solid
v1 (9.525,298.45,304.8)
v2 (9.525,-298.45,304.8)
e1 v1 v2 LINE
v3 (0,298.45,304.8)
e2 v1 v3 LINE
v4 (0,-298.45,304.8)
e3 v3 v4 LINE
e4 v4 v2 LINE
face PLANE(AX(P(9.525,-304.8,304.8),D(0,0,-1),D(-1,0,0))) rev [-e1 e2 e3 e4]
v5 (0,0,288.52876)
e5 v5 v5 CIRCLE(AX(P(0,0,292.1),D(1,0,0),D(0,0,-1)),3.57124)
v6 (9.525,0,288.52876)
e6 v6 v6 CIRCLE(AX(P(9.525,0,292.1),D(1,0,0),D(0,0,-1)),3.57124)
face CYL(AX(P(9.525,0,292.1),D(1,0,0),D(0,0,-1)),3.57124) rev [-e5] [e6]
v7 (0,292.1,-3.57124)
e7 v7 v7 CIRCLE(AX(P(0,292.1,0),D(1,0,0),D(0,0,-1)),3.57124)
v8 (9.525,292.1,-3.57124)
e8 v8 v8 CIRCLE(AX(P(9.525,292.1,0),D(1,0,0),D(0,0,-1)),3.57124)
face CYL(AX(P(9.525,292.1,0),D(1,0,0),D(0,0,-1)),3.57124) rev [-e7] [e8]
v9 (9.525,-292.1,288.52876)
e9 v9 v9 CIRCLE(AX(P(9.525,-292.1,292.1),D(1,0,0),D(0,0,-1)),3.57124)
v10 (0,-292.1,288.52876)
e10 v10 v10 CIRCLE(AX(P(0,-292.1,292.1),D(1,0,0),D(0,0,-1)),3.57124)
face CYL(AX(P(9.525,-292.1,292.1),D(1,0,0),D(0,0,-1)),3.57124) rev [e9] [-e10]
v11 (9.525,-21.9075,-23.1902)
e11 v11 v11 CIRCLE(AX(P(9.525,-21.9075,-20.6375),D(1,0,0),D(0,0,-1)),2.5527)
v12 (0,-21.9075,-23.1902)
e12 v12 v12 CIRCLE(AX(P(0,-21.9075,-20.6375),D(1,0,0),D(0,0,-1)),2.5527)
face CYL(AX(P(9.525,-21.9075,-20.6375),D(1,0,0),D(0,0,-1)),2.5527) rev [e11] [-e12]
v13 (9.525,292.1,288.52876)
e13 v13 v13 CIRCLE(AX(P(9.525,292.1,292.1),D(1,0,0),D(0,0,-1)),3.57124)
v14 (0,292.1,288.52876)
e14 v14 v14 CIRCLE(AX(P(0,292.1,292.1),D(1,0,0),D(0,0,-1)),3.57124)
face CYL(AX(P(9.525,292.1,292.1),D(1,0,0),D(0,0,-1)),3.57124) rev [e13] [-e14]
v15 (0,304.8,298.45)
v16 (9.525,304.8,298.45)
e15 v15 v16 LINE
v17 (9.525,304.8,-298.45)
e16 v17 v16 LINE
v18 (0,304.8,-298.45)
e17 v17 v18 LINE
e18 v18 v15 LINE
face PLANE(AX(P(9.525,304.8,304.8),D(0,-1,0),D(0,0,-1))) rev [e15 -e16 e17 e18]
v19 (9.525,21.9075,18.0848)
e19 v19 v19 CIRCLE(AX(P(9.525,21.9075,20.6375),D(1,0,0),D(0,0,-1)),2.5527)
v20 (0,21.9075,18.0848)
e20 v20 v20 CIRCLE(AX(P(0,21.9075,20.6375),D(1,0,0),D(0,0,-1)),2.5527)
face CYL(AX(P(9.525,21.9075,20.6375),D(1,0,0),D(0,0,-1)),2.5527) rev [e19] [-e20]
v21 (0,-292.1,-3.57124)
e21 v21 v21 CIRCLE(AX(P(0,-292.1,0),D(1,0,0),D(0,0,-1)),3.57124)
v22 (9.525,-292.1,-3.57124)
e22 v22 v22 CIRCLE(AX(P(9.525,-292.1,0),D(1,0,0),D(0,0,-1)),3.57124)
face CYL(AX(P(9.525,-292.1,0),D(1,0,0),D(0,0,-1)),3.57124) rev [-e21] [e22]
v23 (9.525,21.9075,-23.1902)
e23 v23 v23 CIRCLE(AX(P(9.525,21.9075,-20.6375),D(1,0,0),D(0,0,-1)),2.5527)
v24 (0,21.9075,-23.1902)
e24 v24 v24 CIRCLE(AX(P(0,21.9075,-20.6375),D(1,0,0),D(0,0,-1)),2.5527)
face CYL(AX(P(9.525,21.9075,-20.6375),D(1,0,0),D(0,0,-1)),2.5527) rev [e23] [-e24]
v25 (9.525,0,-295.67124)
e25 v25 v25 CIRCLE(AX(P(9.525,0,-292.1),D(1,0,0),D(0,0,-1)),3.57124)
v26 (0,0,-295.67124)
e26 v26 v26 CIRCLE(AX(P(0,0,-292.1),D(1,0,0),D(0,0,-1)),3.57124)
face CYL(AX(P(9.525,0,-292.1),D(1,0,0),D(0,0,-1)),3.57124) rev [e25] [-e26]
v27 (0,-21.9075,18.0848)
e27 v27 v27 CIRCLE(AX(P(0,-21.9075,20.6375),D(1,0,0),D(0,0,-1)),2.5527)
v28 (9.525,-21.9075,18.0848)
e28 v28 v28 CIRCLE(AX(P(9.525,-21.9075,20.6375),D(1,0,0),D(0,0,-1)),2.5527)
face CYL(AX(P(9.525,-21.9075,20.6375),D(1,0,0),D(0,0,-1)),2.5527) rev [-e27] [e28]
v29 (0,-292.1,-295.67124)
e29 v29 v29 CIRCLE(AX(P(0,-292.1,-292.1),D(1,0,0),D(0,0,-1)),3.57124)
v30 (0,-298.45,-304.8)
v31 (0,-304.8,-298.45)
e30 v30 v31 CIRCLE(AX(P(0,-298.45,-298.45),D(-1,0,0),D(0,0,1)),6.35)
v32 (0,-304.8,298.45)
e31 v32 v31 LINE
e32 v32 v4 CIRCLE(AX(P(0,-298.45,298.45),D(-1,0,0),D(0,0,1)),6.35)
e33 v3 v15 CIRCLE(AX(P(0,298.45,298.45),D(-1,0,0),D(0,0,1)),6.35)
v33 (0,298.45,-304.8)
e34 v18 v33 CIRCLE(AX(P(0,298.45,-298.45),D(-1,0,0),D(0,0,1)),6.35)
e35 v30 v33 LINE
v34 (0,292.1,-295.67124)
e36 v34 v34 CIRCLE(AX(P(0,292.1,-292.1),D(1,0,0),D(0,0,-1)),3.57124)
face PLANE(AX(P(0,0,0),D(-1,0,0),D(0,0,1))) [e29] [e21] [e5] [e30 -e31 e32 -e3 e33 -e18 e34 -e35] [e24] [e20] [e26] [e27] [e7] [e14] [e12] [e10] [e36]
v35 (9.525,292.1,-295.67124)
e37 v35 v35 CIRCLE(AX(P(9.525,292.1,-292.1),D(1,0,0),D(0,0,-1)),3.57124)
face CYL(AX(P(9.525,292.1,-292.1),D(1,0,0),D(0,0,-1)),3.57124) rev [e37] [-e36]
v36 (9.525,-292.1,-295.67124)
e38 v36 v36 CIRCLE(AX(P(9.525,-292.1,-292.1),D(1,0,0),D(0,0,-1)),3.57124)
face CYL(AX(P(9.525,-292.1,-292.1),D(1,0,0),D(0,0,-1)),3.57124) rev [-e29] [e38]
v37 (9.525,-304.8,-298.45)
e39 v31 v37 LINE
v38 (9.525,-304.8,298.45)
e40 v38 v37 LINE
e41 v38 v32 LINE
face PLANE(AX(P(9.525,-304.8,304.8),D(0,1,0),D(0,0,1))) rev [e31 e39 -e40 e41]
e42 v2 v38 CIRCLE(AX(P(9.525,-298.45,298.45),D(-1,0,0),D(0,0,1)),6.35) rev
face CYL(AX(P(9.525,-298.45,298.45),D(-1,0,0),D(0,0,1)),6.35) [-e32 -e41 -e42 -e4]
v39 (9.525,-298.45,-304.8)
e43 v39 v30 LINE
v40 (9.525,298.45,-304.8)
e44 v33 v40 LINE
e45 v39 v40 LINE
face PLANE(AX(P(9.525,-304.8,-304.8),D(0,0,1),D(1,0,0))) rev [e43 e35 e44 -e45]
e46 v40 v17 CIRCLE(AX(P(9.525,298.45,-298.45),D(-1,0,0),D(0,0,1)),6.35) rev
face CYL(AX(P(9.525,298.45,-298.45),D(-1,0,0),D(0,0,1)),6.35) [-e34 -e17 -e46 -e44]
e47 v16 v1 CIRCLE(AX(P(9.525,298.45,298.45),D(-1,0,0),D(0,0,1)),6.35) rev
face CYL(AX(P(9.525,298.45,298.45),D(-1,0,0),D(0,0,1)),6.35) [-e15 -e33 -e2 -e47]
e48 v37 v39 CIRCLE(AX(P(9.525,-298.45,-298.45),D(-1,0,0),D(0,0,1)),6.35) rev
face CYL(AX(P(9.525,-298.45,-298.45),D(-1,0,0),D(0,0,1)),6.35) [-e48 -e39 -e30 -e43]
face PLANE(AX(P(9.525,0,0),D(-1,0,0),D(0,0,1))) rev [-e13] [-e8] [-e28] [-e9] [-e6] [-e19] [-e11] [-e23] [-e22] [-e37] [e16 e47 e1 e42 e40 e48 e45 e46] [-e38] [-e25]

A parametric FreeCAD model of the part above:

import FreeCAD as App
import Part
import Sketcher
from FreeCAD import Vector
Q = App.Units.Quantity


def edges_at(feature, points):
    """Names of the edges that pass closest to the given points."""
    edges = feature.Shape.Edges
    near = lambda p: min(range(len(edges)), key=lambda i: edges[i].distToShape(Part.Vertex(*p))[0])
    return sorted({f"Edge{near(p) + 1}" for p in points})

doc = App.newDocument("Part")
body = doc.addObject("PartDesign::Body", "Body")

# Sketch on YZ plane
sketch1 = doc.addObject("Sketcher::SketchObject", "Sketch")
body.addObject(sketch1)
sketch1.AttachmentSupport = (doc.YZ_Plane, [""])
sketch1.MapMode = "FlatFace"
sketch1.addGeometry(Part.LineSegment(Vector(305, 305, 0), Vector(-305, 305, 0)), False)
sketch1.addGeometry(Part.LineSegment(Vector(-305, 305, 0), Vector(-305, -305, 0)), False)
sketch1.addGeometry(Part.LineSegment(Vector(-305, -305, 0), Vector(305, -305, 0)), False)
sketch1.addGeometry(Part.LineSegment(Vector(305, -305, 0), Vector(305, 305, 0)), False)
sketch1.addConstraint(Sketcher.Constraint("Coincident", 0, 2, 1, 1))
sketch1.addConstraint(Sketcher.Constraint("Coincident", 1, 2, 2, 1))
sketch1.addConstraint(Sketcher.Constraint("Coincident", 2, 2, 3, 1))
sketch1.addConstraint(Sketcher.Constraint("Coincident", 3, 2, 0, 1))
sketch1.addConstraint(Sketcher.Constraint("Horizontal", 0))
sketch1.addConstraint(Sketcher.Constraint("Vertical", 1))
sketch1.addConstraint(Sketcher.Constraint("Horizontal", 2))
sketch1.addConstraint(Sketcher.Constraint("Vertical", 3))
sketch1.addConstraint(Sketcher.Constraint("Symmetric", 0, 2, 2, 2, -1, 1))
sketch1.addConstraint(Sketcher.Constraint("Equal", 2, 1))
sketch1.addConstraint(Sketcher.Constraint("DistanceX", 0, 2, 0, 1, Q("24 in")))
pad1 = doc.addObject("PartDesign::Pad", "Pad")
body.addObject(pad1)
pad1.Profile = sketch1
pad1.Length = Q("0.375 in")

# Sketch on YZ plane
sketch2 = doc.addObject("Sketcher::SketchObject", "Sketch001")
body.addObject(sketch2)
sketch2.AttachmentSupport = (doc.YZ_Plane, [""])
sketch2.MapMode = "FlatFace"
sketch2.AttachmentOffset = App.Placement(Vector(0, 0, 0.375 * 25.4), App.Rotation())
sketch2.addGeometry(Part.Circle(Vector(21.9, 20.6, 0), Vector(0, 0, 1), 2.6), False)
sketch2.addGeometry(Part.Circle(Vector(21.9, -20.6, 0), Vector(0, 0, 1), 2.6), False)
sketch2.addGeometry(Part.Circle(Vector(-21.9, -20.6, 0), Vector(0, 0, 1), 2.6), False)
sketch2.addGeometry(Part.Circle(Vector(-21.9, 20.6, 0), Vector(0, 0, 1), 2.6), False)
sketch2.addConstraint(Sketcher.Constraint("Equal", 0, 1))
sketch2.addConstraint(Sketcher.Constraint("Equal", 1, 2))
sketch2.addConstraint(Sketcher.Constraint("Equal", 2, 3))
sketch2.addConstraint(Sketcher.Constraint("Symmetric", 0, 3, 2, 3, -1, 1))
sketch2.addConstraint(Sketcher.Constraint("Symmetric", 1, 3, 3, 3, -1, 1))
sketch2.addConstraint(Sketcher.Constraint("Symmetric", 1, 3, 2, 3, -2))
sketch2.addConstraint(Sketcher.Constraint("Diameter", 0, Q("0.201 in")))
sketch2.addConstraint(Sketcher.Constraint("DistanceY", -1, 1, 0, 3, Q("0.8125 in")))
sketch2.addConstraint(Sketcher.Constraint("DistanceX", 2, 3, 1, 3, Q("1.725 in")))
doc.recompute()
hole = doc.addObject("PartDesign::Hole", "Hole")
body.addObject(hole)
hole.Profile = sketch2
hole.ThreadType = "None"
hole.Diameter = Q("0.201 in")
hole.DepthType = "ThroughAll"
doc.recompute()

fillet = doc.addObject("PartDesign::Fillet", "Fillet")
body.addObject(fillet)
fillet.Base = (hole, edges_at(hole, [
    (4.763, -304.8, -304.8),
    (4.763, -304.8, 304.8),
    (4.763, 304.8, 304.8),
    (4.763, 304.8, -304.8),
]))
fillet.Radius = Q("0.25 in")

# Sketch on YZ plane
sketch3 = doc.addObject("Sketcher::SketchObject", "Sketch002")
body.addObject(sketch3)
sketch3.AttachmentSupport = (doc.YZ_Plane, [""])
sketch3.MapMode = "FlatFace"
sketch3.AttachmentOffset = App.Placement(Vector(0, 0, 0.375 * 25.4), App.Rotation())
sketch3.addGeometry(Part.Circle(Vector(292.1, 292.1, 0), Vector(0, 0, 1), 3.6), False)
sketch3.addGeometry(Part.Circle(Vector(292.1, -292.1, 0), Vector(0, 0, 1), 3.6), False)
sketch3.addGeometry(Part.Circle(Vector(-292.1, -292.1, 0), Vector(0, 0, 1), 3.6), False)
sketch3.addGeometry(Part.Circle(Vector(-292.1, 292.1, 0), Vector(0, 0, 1), 3.6), False)
sketch3.addGeometry(Part.Circle(Vector(292.1, 0, 0), Vector(0, 0, 1), 3.6), False)
sketch3.addGeometry(Part.Circle(Vector(0, 292.1, 0), Vector(0, 0, 1), 3.6), False)
sketch3.addGeometry(Part.Circle(Vector(-292.1, 0, 0), Vector(0, 0, 1), 3.6), False)
sketch3.addGeometry(Part.Circle(Vector(0, -292.1, 0), Vector(0, 0, 1), 3.6), False)
sketch3.addConstraint(Sketcher.Constraint("Equal", 0, 1))
sketch3.addConstraint(Sketcher.Constraint("Equal", 1, 2))
sketch3.addConstraint(Sketcher.Constraint("Equal", 2, 3))
sketch3.addConstraint(Sketcher.Constraint("Equal", 3, 4))
sketch3.addConstraint(Sketcher.Constraint("Equal", 4, 5))
sketch3.addConstraint(Sketcher.Constraint("Equal", 5, 6))
sketch3.addConstraint(Sketcher.Constraint("Equal", 6, 7))
sketch3.addConstraint(Sketcher.Constraint("Symmetric", 0, 3, 2, 3, -1, 1))
sketch3.addConstraint(Sketcher.Constraint("Symmetric", 1, 3, 3, 3, -1, 1))
sketch3.addConstraint(Sketcher.Constraint("Symmetric", 4, 3, 6, 3, -1, 1))
sketch3.addConstraint(Sketcher.Constraint("Symmetric", 5, 3, 7, 3, -1, 1))
sketch3.addConstraint(Sketcher.Constraint("Symmetric", 1, 3, 2, 3, -2))
sketch3.addConstraint(Sketcher.Constraint("PointOnObject", 4, 3, -1))
sketch3.addConstraint(Sketcher.Constraint("PointOnObject", 5, 3, -2))
sketch3.addConstraint(Sketcher.Constraint("Horizontal", 3, 3, 5, 3))
sketch3.addConstraint(Sketcher.Constraint("Vertical", 1, 3, 4, 3))
sketch3.addConstraint(Sketcher.Constraint("DistanceY", 1, 3, 0, 3, Q("23 in")))
sketch3.addConstraint(Sketcher.Constraint("DistanceX", 2, 3, 1, 3, Q("23 in")))
sketch3.addConstraint(Sketcher.Constraint("Diameter", 0, Q("0.2812 in")))
doc.recompute()
hole2 = doc.addObject("PartDesign::Hole", "Hole001")
body.addObject(hole2)
hole2.Profile = sketch3
hole2.ThreadType = "None"
hole2.Diameter = Q("0.2812 in")
hole2.DepthType = "ThroughAll"

doc.recompute()
